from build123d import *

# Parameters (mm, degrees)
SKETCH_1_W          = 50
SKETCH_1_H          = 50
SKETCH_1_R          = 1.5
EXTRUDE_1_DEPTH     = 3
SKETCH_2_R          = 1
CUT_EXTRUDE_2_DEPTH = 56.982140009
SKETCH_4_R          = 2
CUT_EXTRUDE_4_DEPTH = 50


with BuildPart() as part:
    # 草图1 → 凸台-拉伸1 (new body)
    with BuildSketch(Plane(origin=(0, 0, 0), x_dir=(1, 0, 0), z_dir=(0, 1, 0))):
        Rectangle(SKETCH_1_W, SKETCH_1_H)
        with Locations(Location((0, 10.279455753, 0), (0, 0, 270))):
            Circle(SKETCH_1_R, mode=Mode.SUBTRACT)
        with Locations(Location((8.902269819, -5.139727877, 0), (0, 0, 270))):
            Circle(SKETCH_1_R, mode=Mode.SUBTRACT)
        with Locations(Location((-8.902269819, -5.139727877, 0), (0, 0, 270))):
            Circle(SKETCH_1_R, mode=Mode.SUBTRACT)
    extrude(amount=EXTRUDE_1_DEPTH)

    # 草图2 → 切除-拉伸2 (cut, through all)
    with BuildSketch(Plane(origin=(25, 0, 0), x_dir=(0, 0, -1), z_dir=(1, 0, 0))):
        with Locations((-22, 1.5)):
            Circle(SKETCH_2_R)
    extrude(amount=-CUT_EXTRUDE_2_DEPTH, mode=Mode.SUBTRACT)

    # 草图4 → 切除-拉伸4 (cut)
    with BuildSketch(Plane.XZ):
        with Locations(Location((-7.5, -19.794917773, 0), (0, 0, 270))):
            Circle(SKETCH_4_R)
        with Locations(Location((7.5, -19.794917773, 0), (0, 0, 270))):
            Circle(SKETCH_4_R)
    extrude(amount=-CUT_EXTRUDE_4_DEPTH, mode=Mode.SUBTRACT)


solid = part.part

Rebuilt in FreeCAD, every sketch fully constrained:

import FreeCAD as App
import Part
import Sketcher

V = App.Vector

doc = App.newDocument("Part")
body = doc.addObject("PartDesign::Body", "Body")

# Sketch on XZ plane
sketch1 = body.newObject("Sketcher::SketchObject", "Sketch")
sketch1.AttachmentSupport = (doc.getObject("XZ_Plane"), [""])
sketch1.MapMode = "FlatFace"
sketch1.addGeometry([
    Part.LineSegment(V(-25, -25, 0), V(-25, 25, 0)),  # 0
    Part.LineSegment(V(-25, 25, 0), V(25, 25, 0)),  # 1
    Part.LineSegment(V(25, 25, 0), V(25, -25, 0)),  # 2
    Part.LineSegment(V(25, -25, 0), V(-25, -25, 0)),  # 3
    Part.Circle(V(-8.9, 5.1, 0), V(0, 0, 1), 1.5),  # 4
    Part.Circle(V(8.9, 5.1, 0), V(0, 0, 1), 1.5),  # 5
    Part.Circle(V(0, -10.3, 0), V(0, 0, 1), 1.5),  # 6
], False)
sketch1.addConstraint([
    Sketcher.Constraint("Coincident", 0, 2, 1, 1),
    Sketcher.Constraint("Coincident", 1, 2, 2, 1),
    Sketcher.Constraint("Coincident", 2, 2, 3, 1),
    Sketcher.Constraint("Coincident", 3, 2, 0, 1),
    Sketcher.Constraint("Vertical", 0),
    Sketcher.Constraint("Horizontal", 1),
    Sketcher.Constraint("Vertical", 2),
    Sketcher.Constraint("Horizontal", 3),
    Sketcher.Constraint("Equal", 4, 5),
    Sketcher.Constraint("Equal", 5, 6),
    Sketcher.Constraint("Symmetric", 0, 2, 2, 2, -1, 1),
    Sketcher.Constraint("Symmetric", 4, 3, 5, 3, -2),
    Sketcher.Constraint("PointOnObject", 6, 3, -2),
    Sketcher.Constraint("Equal", 3, 0),
    Sketcher.Constraint("Diameter", 4, 3.0),
    Sketcher.Constraint("DistanceX", 1, 1, 1, 2, 50.0),
    Sketcher.Constraint("DistanceX", 4, 3, -1, 1, 8.90227),
    Sketcher.Constraint("DistanceY", -1, 1, 4, 3, 5.139728),
    Sketcher.Constraint("DistanceY", 6, 3, -1, 1, 10.279456),
])
pad1 = body.newObject("PartDesign::Pad", "Pad")
pad1.Profile = sketch1
pad1.Length = 3
pad1.Reversed = True

# Sketch on YZ plane
sketch2 = body.newObject("Sketcher::SketchObject", "Sketch001")
sketch2.AttachmentSupport = (doc.getObject("YZ_Plane"), [""])
sketch2.MapMode = "FlatFace"
sketch2.AttachmentOffset = App.Placement(V(0, 0, 25), App.Rotation())
sketch2.addGeometry(Part.Circle(V(1.5, 22, 0), V(0, 0, 1), 1), False)
sketch2.addConstraint([
    Sketcher.Constraint("Diameter", 0, 2.0),
    Sketcher.Constraint("DistanceY", -1, 1, 0, 3, 22.0),
    Sketcher.Constraint("DistanceX", -1, 1, 0, 3, 1.5),
])
pocket1 = body.newObject("PartDesign::Pocket", "Pocket")
pocket1.Profile = sketch2
pocket1.Type = "ThroughAll"

# Sketch on XZ plane
sketch3 = body.newObject("Sketcher::SketchObject", "Sketch002")
sketch3.AttachmentSupport = (doc.getObject("XZ_Plane"), [""])
sketch3.MapMode = "FlatFace"
sketch3.addGeometry([
    Part.Circle(V(-7.5, -19.8, 0), V(0, 0, 1), 2),
    Part.Circle(V(7.5, -19.8, 0), V(0, 0, 1), 2),
], False)
sketch3.addConstraint([
    Sketcher.Constraint("Equal", 0, 1),
    Sketcher.Constraint("Symmetric", 0, 3, 1, 3, -2),
    Sketcher.Constraint("Diameter", 0, 4.0),
    Sketcher.Constraint("DistanceX", 0, 3, 1, 3, 15.0),
    Sketcher.Constraint("DistanceY", 0, 3, -1, 1, 19.794918),
])
pocket2 = body.newObject("PartDesign::Pocket", "Pocket001")
pocket2.Profile = sketch3
pocket2.Length = 50

doc.recompute()
